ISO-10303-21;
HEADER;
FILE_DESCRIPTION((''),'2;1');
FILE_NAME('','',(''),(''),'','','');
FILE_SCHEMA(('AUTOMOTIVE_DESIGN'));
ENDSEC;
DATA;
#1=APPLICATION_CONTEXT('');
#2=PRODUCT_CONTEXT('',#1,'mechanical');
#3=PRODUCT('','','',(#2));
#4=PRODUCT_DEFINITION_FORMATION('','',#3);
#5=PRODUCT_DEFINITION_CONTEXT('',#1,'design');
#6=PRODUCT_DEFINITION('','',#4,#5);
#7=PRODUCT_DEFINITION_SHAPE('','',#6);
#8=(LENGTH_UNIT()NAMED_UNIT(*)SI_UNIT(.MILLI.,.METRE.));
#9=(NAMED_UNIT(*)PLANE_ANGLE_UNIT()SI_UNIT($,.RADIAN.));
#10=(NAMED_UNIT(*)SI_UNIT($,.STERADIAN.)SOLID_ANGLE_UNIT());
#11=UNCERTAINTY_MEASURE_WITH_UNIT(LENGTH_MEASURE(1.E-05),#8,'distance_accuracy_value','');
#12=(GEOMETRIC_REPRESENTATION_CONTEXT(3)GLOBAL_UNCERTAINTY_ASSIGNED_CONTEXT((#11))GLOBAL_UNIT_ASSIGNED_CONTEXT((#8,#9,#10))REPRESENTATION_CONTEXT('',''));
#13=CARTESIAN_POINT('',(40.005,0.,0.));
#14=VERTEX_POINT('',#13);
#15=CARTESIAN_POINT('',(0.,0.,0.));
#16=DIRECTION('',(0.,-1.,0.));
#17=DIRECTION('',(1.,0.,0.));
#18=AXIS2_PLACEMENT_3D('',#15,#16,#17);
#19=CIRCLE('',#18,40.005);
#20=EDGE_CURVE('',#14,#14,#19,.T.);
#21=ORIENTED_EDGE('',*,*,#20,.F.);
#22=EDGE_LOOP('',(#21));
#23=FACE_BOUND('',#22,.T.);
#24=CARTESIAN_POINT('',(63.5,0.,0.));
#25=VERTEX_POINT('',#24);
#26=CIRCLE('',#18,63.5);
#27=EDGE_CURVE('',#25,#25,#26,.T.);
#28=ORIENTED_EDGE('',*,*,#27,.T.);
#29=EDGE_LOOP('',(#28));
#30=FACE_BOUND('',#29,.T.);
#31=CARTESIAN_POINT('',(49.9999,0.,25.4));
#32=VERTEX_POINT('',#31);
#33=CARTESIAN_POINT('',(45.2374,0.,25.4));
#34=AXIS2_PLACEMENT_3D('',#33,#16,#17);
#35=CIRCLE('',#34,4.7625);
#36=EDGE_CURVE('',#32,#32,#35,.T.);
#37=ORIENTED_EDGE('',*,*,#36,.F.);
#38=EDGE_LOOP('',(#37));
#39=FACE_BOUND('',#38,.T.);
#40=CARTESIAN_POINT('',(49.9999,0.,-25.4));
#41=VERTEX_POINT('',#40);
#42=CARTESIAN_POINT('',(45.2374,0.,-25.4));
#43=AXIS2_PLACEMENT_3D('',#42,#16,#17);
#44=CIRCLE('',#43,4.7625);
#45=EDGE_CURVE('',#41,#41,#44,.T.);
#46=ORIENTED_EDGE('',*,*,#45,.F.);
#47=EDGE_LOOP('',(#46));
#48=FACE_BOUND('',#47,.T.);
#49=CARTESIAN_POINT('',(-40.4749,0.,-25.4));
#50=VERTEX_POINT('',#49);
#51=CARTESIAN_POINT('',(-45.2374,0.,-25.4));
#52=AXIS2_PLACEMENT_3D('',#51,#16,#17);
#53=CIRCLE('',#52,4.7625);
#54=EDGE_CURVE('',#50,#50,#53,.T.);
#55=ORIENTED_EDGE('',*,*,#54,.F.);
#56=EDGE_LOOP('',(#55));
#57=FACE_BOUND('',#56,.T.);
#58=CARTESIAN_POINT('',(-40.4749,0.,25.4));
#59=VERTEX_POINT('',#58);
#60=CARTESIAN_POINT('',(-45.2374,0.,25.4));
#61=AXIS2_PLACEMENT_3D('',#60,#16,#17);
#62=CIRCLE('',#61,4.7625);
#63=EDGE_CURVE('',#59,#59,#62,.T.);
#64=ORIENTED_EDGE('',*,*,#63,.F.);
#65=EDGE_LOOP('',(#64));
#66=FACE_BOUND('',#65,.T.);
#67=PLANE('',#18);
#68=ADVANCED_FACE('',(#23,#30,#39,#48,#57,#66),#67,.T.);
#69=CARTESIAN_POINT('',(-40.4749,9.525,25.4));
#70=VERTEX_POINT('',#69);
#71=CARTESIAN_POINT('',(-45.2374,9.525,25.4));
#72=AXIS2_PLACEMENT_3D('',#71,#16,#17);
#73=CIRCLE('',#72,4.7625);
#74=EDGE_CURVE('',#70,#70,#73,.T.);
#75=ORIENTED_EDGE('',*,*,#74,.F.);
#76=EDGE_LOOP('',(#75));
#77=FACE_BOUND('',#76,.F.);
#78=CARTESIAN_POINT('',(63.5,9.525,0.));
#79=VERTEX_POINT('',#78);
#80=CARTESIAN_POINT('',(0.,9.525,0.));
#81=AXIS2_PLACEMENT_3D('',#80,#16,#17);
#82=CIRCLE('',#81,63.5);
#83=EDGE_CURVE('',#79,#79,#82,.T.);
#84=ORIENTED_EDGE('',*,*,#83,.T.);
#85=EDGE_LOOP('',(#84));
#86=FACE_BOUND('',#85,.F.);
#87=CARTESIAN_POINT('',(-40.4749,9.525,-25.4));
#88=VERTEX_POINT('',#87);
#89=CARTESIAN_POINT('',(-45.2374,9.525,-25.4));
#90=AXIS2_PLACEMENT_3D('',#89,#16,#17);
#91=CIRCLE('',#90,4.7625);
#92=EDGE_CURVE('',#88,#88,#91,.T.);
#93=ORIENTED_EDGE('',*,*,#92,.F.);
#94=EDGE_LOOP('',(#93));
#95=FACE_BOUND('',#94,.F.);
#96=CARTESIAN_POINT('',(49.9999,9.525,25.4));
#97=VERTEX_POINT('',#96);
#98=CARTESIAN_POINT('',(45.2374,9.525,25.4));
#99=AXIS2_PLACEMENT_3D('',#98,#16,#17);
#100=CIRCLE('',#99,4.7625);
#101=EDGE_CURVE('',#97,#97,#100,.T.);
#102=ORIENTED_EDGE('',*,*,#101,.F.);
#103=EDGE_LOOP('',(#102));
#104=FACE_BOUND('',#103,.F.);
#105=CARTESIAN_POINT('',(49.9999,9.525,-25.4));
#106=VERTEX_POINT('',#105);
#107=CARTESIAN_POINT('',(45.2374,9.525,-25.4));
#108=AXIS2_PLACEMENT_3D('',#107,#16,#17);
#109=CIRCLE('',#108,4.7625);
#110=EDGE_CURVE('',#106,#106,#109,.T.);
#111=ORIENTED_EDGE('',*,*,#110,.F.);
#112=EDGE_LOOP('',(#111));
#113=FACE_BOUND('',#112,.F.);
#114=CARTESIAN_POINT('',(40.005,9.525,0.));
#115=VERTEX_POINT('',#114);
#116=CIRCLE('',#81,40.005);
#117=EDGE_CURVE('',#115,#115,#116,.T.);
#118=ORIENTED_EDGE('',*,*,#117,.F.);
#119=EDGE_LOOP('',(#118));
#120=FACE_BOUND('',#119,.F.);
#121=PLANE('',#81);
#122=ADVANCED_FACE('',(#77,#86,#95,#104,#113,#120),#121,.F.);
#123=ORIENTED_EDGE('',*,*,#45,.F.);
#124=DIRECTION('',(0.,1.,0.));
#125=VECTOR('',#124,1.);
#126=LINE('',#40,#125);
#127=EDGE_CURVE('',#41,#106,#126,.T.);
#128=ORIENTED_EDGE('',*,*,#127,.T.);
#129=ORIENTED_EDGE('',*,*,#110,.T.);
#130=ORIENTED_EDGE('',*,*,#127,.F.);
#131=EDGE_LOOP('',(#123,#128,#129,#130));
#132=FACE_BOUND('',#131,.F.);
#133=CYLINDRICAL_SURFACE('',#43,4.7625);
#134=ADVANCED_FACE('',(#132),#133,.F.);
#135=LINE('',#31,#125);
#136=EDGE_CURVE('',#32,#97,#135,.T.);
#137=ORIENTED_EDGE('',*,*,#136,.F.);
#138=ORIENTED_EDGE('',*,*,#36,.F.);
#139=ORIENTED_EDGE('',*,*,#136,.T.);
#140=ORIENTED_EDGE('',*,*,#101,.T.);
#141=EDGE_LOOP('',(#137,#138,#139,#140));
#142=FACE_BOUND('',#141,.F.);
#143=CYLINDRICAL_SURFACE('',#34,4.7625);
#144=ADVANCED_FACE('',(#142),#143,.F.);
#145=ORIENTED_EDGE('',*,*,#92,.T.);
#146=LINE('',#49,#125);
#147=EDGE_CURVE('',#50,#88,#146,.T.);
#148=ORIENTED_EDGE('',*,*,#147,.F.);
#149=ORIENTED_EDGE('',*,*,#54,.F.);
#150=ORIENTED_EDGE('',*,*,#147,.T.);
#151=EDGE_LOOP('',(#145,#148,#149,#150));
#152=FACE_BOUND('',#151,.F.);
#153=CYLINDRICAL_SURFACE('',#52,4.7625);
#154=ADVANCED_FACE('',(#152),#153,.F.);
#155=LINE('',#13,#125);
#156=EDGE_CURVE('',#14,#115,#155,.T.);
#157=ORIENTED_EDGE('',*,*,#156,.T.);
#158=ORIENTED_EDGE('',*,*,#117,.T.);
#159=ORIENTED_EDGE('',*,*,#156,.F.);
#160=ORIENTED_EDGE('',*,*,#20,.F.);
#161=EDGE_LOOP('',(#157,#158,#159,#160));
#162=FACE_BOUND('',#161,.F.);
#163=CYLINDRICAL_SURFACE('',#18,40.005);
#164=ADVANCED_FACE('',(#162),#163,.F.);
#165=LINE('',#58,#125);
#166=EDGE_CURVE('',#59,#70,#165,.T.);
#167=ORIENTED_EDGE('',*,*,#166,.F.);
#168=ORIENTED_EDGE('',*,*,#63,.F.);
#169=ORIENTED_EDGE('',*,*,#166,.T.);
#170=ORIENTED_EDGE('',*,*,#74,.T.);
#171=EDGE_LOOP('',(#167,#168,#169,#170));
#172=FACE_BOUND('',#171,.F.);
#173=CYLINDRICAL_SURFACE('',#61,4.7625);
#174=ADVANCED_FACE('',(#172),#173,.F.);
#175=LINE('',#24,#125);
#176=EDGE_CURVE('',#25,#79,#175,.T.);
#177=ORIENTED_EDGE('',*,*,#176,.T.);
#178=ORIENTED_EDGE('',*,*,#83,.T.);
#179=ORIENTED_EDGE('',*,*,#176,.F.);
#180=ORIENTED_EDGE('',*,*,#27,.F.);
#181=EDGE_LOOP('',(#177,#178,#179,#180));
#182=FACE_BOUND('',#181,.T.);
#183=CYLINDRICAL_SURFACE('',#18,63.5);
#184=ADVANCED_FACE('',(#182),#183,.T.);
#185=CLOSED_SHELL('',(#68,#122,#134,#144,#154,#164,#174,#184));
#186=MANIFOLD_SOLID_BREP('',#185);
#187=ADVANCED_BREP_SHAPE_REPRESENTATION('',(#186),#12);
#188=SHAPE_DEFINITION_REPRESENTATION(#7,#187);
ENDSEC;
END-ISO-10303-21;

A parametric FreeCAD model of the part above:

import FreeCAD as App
import Part
import Sketcher
Q = App.Units.Quantity

doc = App.newDocument("Part")
body = doc.addObject("PartDesign::Body", "Body")

# Sketch on XZ plane
sketch1 = body.newObject("Sketcher::SketchObject", "Sketch")
sketch1.AttachmentSupport = (doc.getObject("XZ_Plane"), [""])
sketch1.MapMode = "FlatFace"
sketch1.addGeometry(Part.Circle(App.Vector(0, 0, 0), App.Vector(0, 0, 1), 63.5), False)
sketch1.addGeometry(Part.Circle(App.Vector(-45.2, -25.4, 0), App.Vector(0, 0, 1), 4.8), False)
sketch1.addGeometry(Part.Circle(App.Vector(45.2, -25.4, 0), App.Vector(0, 0, 1), 4.8), False)
sketch1.addGeometry(Part.Circle(App.Vector(-45.2, 25.4, 0), App.Vector(0, 0, 1), 4.8), False)
sketch1.addGeometry(Part.Circle(App.Vector(0, 0, 0), App.Vector(0, 0, 1), 40), False)
sketch1.addGeometry(Part.Circle(App.Vector(45.2, 25.4, 0), App.Vector(0, 0, 1), 4.8), False)
sketch1.addConstraint(Sketcher.Constraint("Coincident", 0, 3, -1, 1))
sketch1.addConstraint(Sketcher.Constraint("Coincident", 4, 3, -1, 1))
sketch1.addConstraint(Sketcher.Constraint("Equal", 1, 2))
sketch1.addConstraint(Sketcher.Constraint("Equal", 2, 3))
sketch1.addConstraint(Sketcher.Constraint("Equal", 3, 5))
sketch1.addConstraint(Sketcher.Constraint("Symmetric", 2, 3, 3, 3, -1, 1))
sketch1.addConstraint(Sketcher.Constraint("Symmetric", 1, 3, 5, 3, -1, 1))
sketch1.addConstraint(Sketcher.Constraint("Symmetric", 1, 3, 2, 3, -2))
sketch1.addConstraint(Sketcher.Constraint("Diameter", 0, Q("5 in")))
sketch1.addConstraint(Sketcher.Constraint("Diameter", 4, Q("3.15 in")))
sketch1.addConstraint(Sketcher.Constraint("Diameter", 1, Q("0.375 in")))
sketch1.addConstraint(Sketcher.Constraint("DistanceY", 1, 3, -1, 1, Q("1 in")))
sketch1.addConstraint(Sketcher.Constraint("DistanceX", 1, 3, -1, 1, Q("1.781 in")))
pad1 = body.newObject("PartDesign::Pad", "Pad")
pad1.Profile = sketch1
pad1.Length = Q("0.375 in")
pad1.Reversed = True

doc.recompute()
